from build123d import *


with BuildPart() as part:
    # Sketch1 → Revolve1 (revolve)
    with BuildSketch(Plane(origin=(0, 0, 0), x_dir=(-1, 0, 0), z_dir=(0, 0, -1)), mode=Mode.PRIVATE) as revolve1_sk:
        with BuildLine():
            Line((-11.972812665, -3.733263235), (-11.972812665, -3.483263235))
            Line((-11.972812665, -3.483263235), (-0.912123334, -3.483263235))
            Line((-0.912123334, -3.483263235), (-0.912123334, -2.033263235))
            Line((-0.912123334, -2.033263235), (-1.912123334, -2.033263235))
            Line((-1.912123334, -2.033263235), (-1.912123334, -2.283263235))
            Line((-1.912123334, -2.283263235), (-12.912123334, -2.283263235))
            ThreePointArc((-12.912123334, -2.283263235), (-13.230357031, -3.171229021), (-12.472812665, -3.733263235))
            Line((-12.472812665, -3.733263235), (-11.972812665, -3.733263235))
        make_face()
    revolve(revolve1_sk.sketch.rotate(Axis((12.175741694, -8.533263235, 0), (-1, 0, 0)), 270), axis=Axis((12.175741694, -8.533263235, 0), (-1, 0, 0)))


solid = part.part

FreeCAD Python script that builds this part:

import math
import FreeCAD as App
import Part
import Sketcher
from FreeCAD import Vector
Q = App.Units.Quantity

doc = App.newDocument("Part")
params = doc.addObject("Spreadsheet::Sheet", "Params")
for row, (alias, value) in enumerate([
    ("sketch1_width", "1 mm"),
    ("sketch1_width2", "11 mm"),
    ("sketch1_width3", "0.5 mm"),
    ("sketch1_height", "0.25 mm"),
    ("sketch1_height2", "1.45 mm"),
    ("revolution_angle", "360 deg"),
], start=1):
    params.set(f"A{row}", alias)
    params.set(f"B{row}", "=" + value)
    params.setAlias(f"B{row}", alias)

body = doc.addObject("PartDesign::Body", "Body")

# Sketch on XY plane
sketch1 = body.newObject("Sketcher::SketchObject", "Sketch")
sketch1.AttachmentSupport = (doc.getObject("XY_Plane"), [""])
sketch1.MapMode = "FlatFace"
sketch1.addGeometry([
    Part.LineSegment(Vector(11.972813, -3.733263, 0), Vector(11.972813, -3.483263, 0)),  # 0
    Part.LineSegment(Vector(11.972813, -3.483263, 0), Vector(0.912123, -3.483263, 0)),  # 1
    Part.LineSegment(Vector(0.912123, -3.483263, 0), Vector(0.912123, -2.033263, 0)),  # 2
    Part.LineSegment(Vector(0.912123, -2.033263, 0), Vector(1.912123, -2.033263, 0)),  # 3
    Part.LineSegment(Vector(1.912123, -2.033263, 0), Vector(1.912123, -2.283263, 0)),  # 4
    Part.LineSegment(Vector(1.912123, -2.283263, 0), Vector(12.912123, -2.283263, 0)),  # 5
    Part.ArcOfCircle(Part.Circle(Vector(12.472813, -2.941714, 0), Vector(0, 0, 1), 0.79155), math.radians(-90), math.radians(56.28923)),  # 6
    Part.LineSegment(Vector(12.472813, -3.733263, 0), Vector(11.972813, -3.733263, 0)),  # 7
], False)
sketch1.addGeometry(Part.LineSegment(Vector(12.912123, -8.533263, 0), Vector(0.912123, -8.533263, 0)), True)  # axis
sketch1.addConstraint([
    Sketcher.Constraint("Coincident", 0, 2, 1, 1),
    Sketcher.Constraint("Coincident", 1, 2, 2, 1),
    Sketcher.Constraint("Coincident", 2, 2, 3, 1),
    Sketcher.Constraint("Coincident", 3, 2, 4, 1),
    Sketcher.Constraint("Coincident", 4, 2, 5, 1),
    Sketcher.Constraint("Coincident", 5, 2, 6, 2),
    Sketcher.Constraint("Tangent", 6, 1, 7, 1),
    Sketcher.Constraint("Coincident", 7, 2, 0, 1),
    Sketcher.Constraint("Vertical", 0),
    Sketcher.Constraint("Horizontal", 1),
    Sketcher.Constraint("Vertical", 2),
    Sketcher.Constraint("Horizontal", 3),
    Sketcher.Constraint("Vertical", 4),
    Sketcher.Constraint("Horizontal", 5),
    Sketcher.Constraint("Horizontal", 7),
    Sketcher.Constraint("Horizontal", 8),
    Sketcher.Constraint("Vertical", 5, 2, 8, 1),
    Sketcher.Constraint("Vertical", 2, 2, 8, 2),
    Sketcher.Constraint("Equal", 0, 4),
    Sketcher.Constraint("DistanceX", 3, 1, 3, 2, Q("1 mm")),
    Sketcher.Constraint("DistanceX", 5, 1, 5, 2, Q("11 mm")),
    Sketcher.Constraint("DistanceX", 7, 2, 7, 1, Q("0.5 mm")),
    Sketcher.Constraint("DistanceY", 0, 1, 0, 2, Q("0.25 mm")),
    Sketcher.Constraint("DistanceY", 2, 1, 2, 2, Q("1.45 mm")),
    Sketcher.Constraint("DistanceY", 8, 1, 6, 1, Q("4.8 mm")),
    Sketcher.Constraint("Radius", 6, Q("0.79155 mm")),
    Sketcher.Constraint("DistanceX", -1, 1, 6, 3, Q("12.472813 mm")),
    Sketcher.Constraint("DistanceY", 6, 3, -1, 1, Q("2.941714 mm")),
])
sketch1.setExpression("Constraints[19]", "Params.sketch1_width")
sketch1.setExpression("Constraints[20]", "Params.sketch1_width2")
sketch1.setExpression("Constraints[21]", "Params.sketch1_width3")
sketch1.setExpression("Constraints[22]", "Params.sketch1_height")
sketch1.setExpression("Constraints[23]", "Params.sketch1_height2")
revolution = body.newObject("PartDesign::Revolution", "Revolution")
revolution.Profile = sketch1
revolution.ReferenceAxis = (sketch1, ["Axis0"])
revolution.setExpression("Angle", "Params.revolution_angle")

doc.recompute()
